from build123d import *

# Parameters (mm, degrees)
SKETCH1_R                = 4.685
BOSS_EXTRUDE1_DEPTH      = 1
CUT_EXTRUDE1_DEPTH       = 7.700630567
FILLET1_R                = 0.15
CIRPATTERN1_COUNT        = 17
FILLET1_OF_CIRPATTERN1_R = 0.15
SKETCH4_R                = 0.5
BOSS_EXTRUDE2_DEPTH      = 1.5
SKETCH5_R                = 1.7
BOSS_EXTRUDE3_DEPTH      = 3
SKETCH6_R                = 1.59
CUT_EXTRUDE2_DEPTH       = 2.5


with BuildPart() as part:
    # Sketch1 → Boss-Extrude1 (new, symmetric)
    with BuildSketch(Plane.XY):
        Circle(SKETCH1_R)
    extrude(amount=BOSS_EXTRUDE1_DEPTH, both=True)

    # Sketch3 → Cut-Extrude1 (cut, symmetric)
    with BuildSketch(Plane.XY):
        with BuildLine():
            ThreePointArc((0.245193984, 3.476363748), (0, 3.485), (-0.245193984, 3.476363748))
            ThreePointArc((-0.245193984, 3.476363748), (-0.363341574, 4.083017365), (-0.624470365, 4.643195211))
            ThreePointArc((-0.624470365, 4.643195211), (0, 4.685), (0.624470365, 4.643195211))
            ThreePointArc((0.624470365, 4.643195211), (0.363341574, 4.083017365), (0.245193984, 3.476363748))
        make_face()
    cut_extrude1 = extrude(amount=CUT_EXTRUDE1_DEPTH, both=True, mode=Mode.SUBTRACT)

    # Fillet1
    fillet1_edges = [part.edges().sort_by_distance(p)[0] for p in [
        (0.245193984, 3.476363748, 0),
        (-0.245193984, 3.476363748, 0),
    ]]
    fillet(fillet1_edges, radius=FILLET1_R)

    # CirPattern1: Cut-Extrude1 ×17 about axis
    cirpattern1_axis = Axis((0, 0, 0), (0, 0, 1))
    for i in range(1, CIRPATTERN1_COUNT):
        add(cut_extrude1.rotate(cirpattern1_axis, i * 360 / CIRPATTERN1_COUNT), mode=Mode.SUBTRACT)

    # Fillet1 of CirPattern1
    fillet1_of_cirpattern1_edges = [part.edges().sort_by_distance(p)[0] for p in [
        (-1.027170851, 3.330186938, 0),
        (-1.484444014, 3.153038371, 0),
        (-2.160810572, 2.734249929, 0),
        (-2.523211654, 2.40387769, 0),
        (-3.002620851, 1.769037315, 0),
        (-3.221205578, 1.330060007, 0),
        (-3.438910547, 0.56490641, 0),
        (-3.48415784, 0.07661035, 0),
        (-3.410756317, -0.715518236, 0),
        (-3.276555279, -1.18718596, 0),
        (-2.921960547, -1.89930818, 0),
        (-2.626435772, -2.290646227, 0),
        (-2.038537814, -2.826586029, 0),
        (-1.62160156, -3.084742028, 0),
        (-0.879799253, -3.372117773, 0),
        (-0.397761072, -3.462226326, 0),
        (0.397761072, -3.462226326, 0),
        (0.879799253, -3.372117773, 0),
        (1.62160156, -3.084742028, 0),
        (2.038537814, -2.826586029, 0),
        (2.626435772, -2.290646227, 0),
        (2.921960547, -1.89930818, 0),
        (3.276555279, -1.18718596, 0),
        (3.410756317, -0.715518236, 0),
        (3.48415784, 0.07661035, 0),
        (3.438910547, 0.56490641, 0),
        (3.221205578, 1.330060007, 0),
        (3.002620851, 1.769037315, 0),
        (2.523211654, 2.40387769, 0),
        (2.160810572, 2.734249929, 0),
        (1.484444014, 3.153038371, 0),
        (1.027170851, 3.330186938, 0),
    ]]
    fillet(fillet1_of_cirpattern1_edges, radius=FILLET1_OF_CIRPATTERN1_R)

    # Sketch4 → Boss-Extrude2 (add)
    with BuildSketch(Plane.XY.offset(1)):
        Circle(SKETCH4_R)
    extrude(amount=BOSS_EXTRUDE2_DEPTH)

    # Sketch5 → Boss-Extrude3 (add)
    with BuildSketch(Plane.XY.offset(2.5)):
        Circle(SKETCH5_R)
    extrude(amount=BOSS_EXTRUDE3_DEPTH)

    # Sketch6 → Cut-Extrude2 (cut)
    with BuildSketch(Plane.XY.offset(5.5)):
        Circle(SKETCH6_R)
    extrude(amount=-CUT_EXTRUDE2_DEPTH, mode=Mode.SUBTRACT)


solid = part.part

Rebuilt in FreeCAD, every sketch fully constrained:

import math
import FreeCAD as App
import Part
import Sketcher

V = App.Vector


def edges_at(feature, points):
    """Names of the edges that pass closest to the given points."""
    edges = feature.Shape.Edges
    near = lambda p: min(range(len(edges)), key=lambda i: edges[i].distToShape(Part.Vertex(*p))[0])
    return sorted({f"Edge{near(p) + 1}" for p in points})

doc = App.newDocument("Part")
body = doc.addObject("PartDesign::Body", "Body")

# Sketch on XY plane
sketch1 = doc.addObject("Sketcher::SketchObject", "Sketch")
body.addObject(sketch1)
sketch1.AttachmentSupport = (doc.XY_Plane, [""])
sketch1.MapMode = "FlatFace"
sketch1.addGeometry(Part.Circle(V(0, 0, 0), V(0, 0, 1), 4.7), False)
sketch1.addConstraint([
    Sketcher.Constraint("Coincident", 0, 3, -1, 1),
    Sketcher.Constraint("Diameter", 0, 9.37),
])
pad1 = doc.addObject("PartDesign::Pad", "Pad")
body.addObject(pad1)
pad1.Profile = sketch1
pad1.Length = 2
pad1.Midplane = True

# Sketch on XY plane
sketch2 = doc.addObject("Sketcher::SketchObject", "Sketch001")
body.addObject(sketch2)
sketch2.AttachmentSupport = (doc.XY_Plane, [""])
sketch2.MapMode = "FlatFace"
sketch2.addGeometry([
    Part.ArcOfCircle(Part.Circle(V(0, 0, 0), V(0, 0, 1), 3.48), math.radians(85.97), math.radians(94.03)),
    Part.ArcOfCircle(Part.Circle(V(2.78, 3.3, 0), V(0, 0, 1), 2.54), math.radians(148), math.radians(176)),
    Part.ArcOfCircle(Part.Circle(V(0, 0, 0), V(0, 0, 1), 4.69), math.radians(82.34), math.radians(97.66)),
    Part.ArcOfCircle(Part.Circle(V(-2.78, 3.3, 0), V(0, 0, 1), 2.54), math.radians(4), math.radians(32)),
], False)
sketch2.addConstraint([
    Sketcher.Constraint("Coincident", 0, 1, 1, 2),
    Sketcher.Constraint("Coincident", 1, 1, 2, 1),
    Sketcher.Constraint("Coincident", 2, 2, 3, 2),
    Sketcher.Constraint("Coincident", 3, 1, 0, 2),
    Sketcher.Constraint("Coincident", 0, 3, -1, 1),
    Sketcher.Constraint("Coincident", 2, 3, -1, 1),
    Sketcher.Constraint("Equal", 1, 3),
    Sketcher.Constraint("Symmetric", 1, 3, 3, 3, -2),
    Sketcher.Constraint("Radius", 0, 3.485),
    Sketcher.Constraint("Radius", 2, 4.685),
    Sketcher.Constraint("Radius", 1, 2.540739),
    Sketcher.Constraint("DistanceX", -1, 1, 1, 1, 0.62447),
    Sketcher.Constraint("DistanceY", 1, 3, 0, 1, 0.178759),
])
pocket1 = doc.addObject("PartDesign::Pocket", "Pocket")
body.addObject(pocket1)
pocket1.Profile = sketch2
pocket1.Length = 15.401261
pocket1.Midplane = True
doc.recompute()

fillet = doc.addObject("PartDesign::Fillet", "Fillet")
body.addObject(fillet)
fillet.Base = (pocket1, edges_at(pocket1, [(0.245, 3.476, 0), (-0.245, 3.476, 0)]))
fillet.Radius = 0.15
doc.recompute()

polarpattern = doc.addObject("PartDesign::PolarPattern", "PolarPattern")
body.addObject(polarpattern)
polarpattern.Originals = [pocket1]
polarpattern.Axis = (doc.Z_Axis, [""])
polarpattern.Angle = 360
polarpattern.Occurrences = 17
body.Tip = polarpattern
doc.recompute()

fillet2 = doc.addObject("PartDesign::Fillet", "Fillet001")
body.addObject(fillet2)
fillet2.Base = (polarpattern, edges_at(polarpattern, [
    (-1.027, 3.33, 0),
    (-1.484, 3.153, 0),
    (-2.161, 2.734, 0),
    (-2.523, 2.404, 0),
    (-3.003, 1.769, 0),
    (-3.221, 1.33, 0),
    (-3.439, 0.565, 0),
    (-3.484, 0.077, 0),
    (-3.411, -0.716, 0),
    (-3.277, -1.187, 0),
    (-2.922, -1.899, 0),
    (-2.626, -2.291, 0),
    (-2.039, -2.827, 0),
    (-1.622, -3.085, 0),
    (-0.88, -3.372, 0),
    (-0.398, -3.462, 0),
    (0.398, -3.462, 0),
    (0.88, -3.372, 0),
    (1.622, -3.085, 0),
    (2.039, -2.827, 0),
    (2.626, -2.291, 0),
    (2.922, -1.899, 0),
    (3.277, -1.187, 0),
    (3.411, -0.716, 0),
    (3.484, 0.077, 0),
    (3.439, 0.565, 0),
    (3.221, 1.33, 0),
    (3.003, 1.769, 0),
    (2.523, 2.404, 0),
    (2.161, 2.734, 0),
    (1.484, 3.153, 0),
    (1.027, 3.33, 0),
]))
fillet2.Radius = 0.15

# Sketch on XY plane
sketch3 = doc.addObject("Sketcher::SketchObject", "Sketch002")
body.addObject(sketch3)
sketch3.AttachmentSupport = (doc.XY_Plane, [""])
sketch3.MapMode = "FlatFace"
sketch3.AttachmentOffset = App.Placement(V(0, 0, 1), App.Rotation())
sketch3.addGeometry(Part.Circle(V(0, 0, 0), V(0, 0, 1), 0.5), False)
sketch3.addConstraint([
    Sketcher.Constraint("Coincident", 0, 3, -1, 1),
    Sketcher.Constraint("Diameter", 0, 1.0),
])
pad2 = doc.addObject("PartDesign::Pad", "Pad001")
body.addObject(pad2)
pad2.Profile = sketch3
pad2.Length = 1.5

# Sketch on XY plane
sketch4 = doc.addObject("Sketcher::SketchObject", "Sketch003")
body.addObject(sketch4)
sketch4.AttachmentSupport = (doc.XY_Plane, [""])
sketch4.MapMode = "FlatFace"
sketch4.AttachmentOffset = App.Placement(V(0, 0, 2.5), App.Rotation())
sketch4.addGeometry(Part.Circle(V(0, 0, 0), V(0, 0, 1), 1.7), False)
sketch4.addConstraint([
    Sketcher.Constraint("Coincident", 0, 3, -1, 1),
    Sketcher.Constraint("Diameter", 0, 3.4),
])
pad3 = doc.addObject("PartDesign::Pad", "Pad002")
body.addObject(pad3)
pad3.Profile = sketch4
pad3.Length = 3

# Sketch on XY plane
sketch5 = doc.addObject("Sketcher::SketchObject", "Sketch004")
body.addObject(sketch5)
sketch5.AttachmentSupport = (doc.XY_Plane, [""])
sketch5.MapMode = "FlatFace"
sketch5.AttachmentOffset = App.Placement(V(0, 0, 5.5), App.Rotation())
sketch5.addGeometry(Part.Circle(V(0, 0, 0), V(0, 0, 1), 1.6), False)
sketch5.addConstraint([
    Sketcher.Constraint("Coincident", 0, 3, -1, 1),
    Sketcher.Constraint("Diameter", 0, 3.18),
])
pocket2 = doc.addObject("PartDesign::Pocket", "Pocket001")
body.addObject(pocket2)
pocket2.Profile = sketch5
pocket2.Length = 2.5

doc.recompute()
